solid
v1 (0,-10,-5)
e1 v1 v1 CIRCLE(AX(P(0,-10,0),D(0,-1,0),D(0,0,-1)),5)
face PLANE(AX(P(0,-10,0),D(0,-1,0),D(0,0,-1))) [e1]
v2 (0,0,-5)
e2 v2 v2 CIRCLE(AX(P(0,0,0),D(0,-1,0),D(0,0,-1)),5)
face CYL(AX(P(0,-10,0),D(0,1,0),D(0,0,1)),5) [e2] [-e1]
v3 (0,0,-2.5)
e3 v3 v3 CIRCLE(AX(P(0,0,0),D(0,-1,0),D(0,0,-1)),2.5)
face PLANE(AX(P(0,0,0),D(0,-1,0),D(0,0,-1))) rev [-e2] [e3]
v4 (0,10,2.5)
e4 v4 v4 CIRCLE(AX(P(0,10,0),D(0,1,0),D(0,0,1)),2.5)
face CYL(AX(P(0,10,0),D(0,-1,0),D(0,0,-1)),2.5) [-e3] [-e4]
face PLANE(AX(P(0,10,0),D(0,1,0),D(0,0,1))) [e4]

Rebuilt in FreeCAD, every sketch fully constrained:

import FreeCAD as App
import Part
import Sketcher
from FreeCAD import Vector

doc = App.newDocument("Part")
body = doc.addObject("PartDesign::Body", "Body")

# Sketch on XZ plane
sketch1 = body.newObject("Sketcher::SketchObject", "Sketch")
sketch1.AttachmentSupport = (doc.getObject("XZ_Plane"), [""])
sketch1.MapMode = "FlatFace"
sketch1.addGeometry(Part.Circle(Vector(0, 0, 0), Vector(0, 0, 1), 2.5), False)
sketch1.addConstraint([
    Sketcher.Constraint("Coincident", 0, 3, -1, 1),
    Sketcher.Constraint("Diameter", 0, 5.0),
])
pad1 = body.newObject("PartDesign::Pad", "Pad")
pad1.Profile = sketch1
pad1.Length = 10
pad1.Reversed = True

# Sketch on XZ plane
sketch2 = body.newObject("Sketcher::SketchObject", "Sketch001")
sketch2.AttachmentSupport = (doc.getObject("XZ_Plane"), [""])
sketch2.MapMode = "FlatFace"
sketch2.addGeometry(Part.Circle(Vector(0, 0, 0), Vector(0, 0, 1), 5), False)
sketch2.addConstraint([
    Sketcher.Constraint("Coincident", 0, 3, -1, 1),
    Sketcher.Constraint("Diameter", 0, 10.0),
])
pad2 = body.newObject("PartDesign::Pad", "Pad001")
pad2.Profile = sketch2
pad2.Length = 10

doc.recompute()
